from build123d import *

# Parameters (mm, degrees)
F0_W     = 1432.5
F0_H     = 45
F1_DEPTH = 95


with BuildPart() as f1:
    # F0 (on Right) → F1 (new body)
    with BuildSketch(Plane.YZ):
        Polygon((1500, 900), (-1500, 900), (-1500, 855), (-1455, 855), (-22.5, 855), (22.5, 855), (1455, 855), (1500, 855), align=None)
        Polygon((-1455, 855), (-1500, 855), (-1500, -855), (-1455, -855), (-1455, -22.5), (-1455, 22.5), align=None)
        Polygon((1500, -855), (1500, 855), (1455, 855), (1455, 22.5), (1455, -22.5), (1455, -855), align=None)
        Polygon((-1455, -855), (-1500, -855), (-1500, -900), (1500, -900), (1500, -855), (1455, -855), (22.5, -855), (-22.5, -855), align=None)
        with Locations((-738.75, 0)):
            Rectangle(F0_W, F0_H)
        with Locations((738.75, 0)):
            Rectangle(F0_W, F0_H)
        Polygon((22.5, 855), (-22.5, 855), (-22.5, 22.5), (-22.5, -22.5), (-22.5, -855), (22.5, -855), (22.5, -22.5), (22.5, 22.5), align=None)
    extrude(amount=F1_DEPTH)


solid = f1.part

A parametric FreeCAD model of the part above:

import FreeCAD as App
import Part
import Sketcher
from FreeCAD import Vector
Q = App.Units.Quantity

doc = App.newDocument("Part")
body = doc.addObject("PartDesign::Body", "Body")

sketch1 = doc.addObject("Sketcher::SketchObject", "Sketch")
body.addObject(sketch1)
sketch1.AttachmentSupport = (doc.YZ_Plane, [""])
sketch1.MapMode = "FlatFace"
sketch1.addGeometry(Part.LineSegment(Vector(1500, 900, 0), Vector(-1500, 900, 0)), False)
sketch1.addGeometry(Part.LineSegment(Vector(-1500, 900, 0), Vector(-1500, -900, 0)), False)
sketch1.addGeometry(Part.LineSegment(Vector(-1500, -900, 0), Vector(1500, -900, 0)), False)
sketch1.addGeometry(Part.LineSegment(Vector(1500, -900, 0), Vector(1500, 900, 0)), False)
sketch1.addGeometry(Part.LineSegment(Vector(-1455, -855, 0), Vector(-1455, -22, 0)), False)
sketch1.addGeometry(Part.LineSegment(Vector(-1455, -22, 0), Vector(-22, -22, 0)), False)
sketch1.addGeometry(Part.LineSegment(Vector(-22, -22, 0), Vector(-22, -855, 0)), False)
sketch1.addGeometry(Part.LineSegment(Vector(-22, -855, 0), Vector(-1455, -855, 0)), False)
sketch1.addGeometry(Part.LineSegment(Vector(-22, 22, 0), Vector(-1455, 22, 0)), False)
sketch1.addGeometry(Part.LineSegment(Vector(-1455, 22, 0), Vector(-1455, 855, 0)), False)
sketch1.addGeometry(Part.LineSegment(Vector(-1455, 855, 0), Vector(-22, 855, 0)), False)
sketch1.addGeometry(Part.LineSegment(Vector(-22, 855, 0), Vector(-22, 22, 0)), False)
sketch1.addGeometry(Part.LineSegment(Vector(22, 855, 0), Vector(1455, 855, 0)), False)
sketch1.addGeometry(Part.LineSegment(Vector(1455, 855, 0), Vector(1455, 22, 0)), False)
sketch1.addGeometry(Part.LineSegment(Vector(1455, 22, 0), Vector(22, 22, 0)), False)
sketch1.addGeometry(Part.LineSegment(Vector(22, 22, 0), Vector(22, 855, 0)), False)
sketch1.addGeometry(Part.LineSegment(Vector(22, -22, 0), Vector(1455, -22, 0)), False)
sketch1.addGeometry(Part.LineSegment(Vector(1455, -22, 0), Vector(1455, -855, 0)), False)
sketch1.addGeometry(Part.LineSegment(Vector(1455, -855, 0), Vector(22, -855, 0)), False)
sketch1.addGeometry(Part.LineSegment(Vector(22, -855, 0), Vector(22, -22, 0)), False)
sketch1.addConstraint(Sketcher.Constraint("Coincident", 0, 2, 1, 1))
sketch1.addConstraint(Sketcher.Constraint("Coincident", 1, 2, 2, 1))
sketch1.addConstraint(Sketcher.Constraint("Coincident", 2, 2, 3, 1))
sketch1.addConstraint(Sketcher.Constraint("Coincident", 3, 2, 0, 1))
sketch1.addConstraint(Sketcher.Constraint("Coincident", 4, 2, 5, 1))
sketch1.addConstraint(Sketcher.Constraint("Coincident", 5, 2, 6, 1))
sketch1.addConstraint(Sketcher.Constraint("Coincident", 6, 2, 7, 1))
sketch1.addConstraint(Sketcher.Constraint("Coincident", 7, 2, 4, 1))
sketch1.addConstraint(Sketcher.Constraint("Coincident", 8, 2, 9, 1))
sketch1.addConstraint(Sketcher.Constraint("Coincident", 9, 2, 10, 1))
sketch1.addConstraint(Sketcher.Constraint("Coincident", 10, 2, 11, 1))
sketch1.addConstraint(Sketcher.Constraint("Coincident", 11, 2, 8, 1))
sketch1.addConstraint(Sketcher.Constraint("Coincident", 12, 2, 13, 1))
sketch1.addConstraint(Sketcher.Constraint("Coincident", 13, 2, 14, 1))
sketch1.addConstraint(Sketcher.Constraint("Coincident", 14, 2, 15, 1))
sketch1.addConstraint(Sketcher.Constraint("Coincident", 15, 2, 12, 1))
sketch1.addConstraint(Sketcher.Constraint("Coincident", 16, 2, 17, 1))
sketch1.addConstraint(Sketcher.Constraint("Coincident", 17, 2, 18, 1))
sketch1.addConstraint(Sketcher.Constraint("Coincident", 18, 2, 19, 1))
sketch1.addConstraint(Sketcher.Constraint("Coincident", 19, 2, 16, 1))
sketch1.addConstraint(Sketcher.Constraint("Horizontal", 0))
sketch1.addConstraint(Sketcher.Constraint("Vertical", 1))
sketch1.addConstraint(Sketcher.Constraint("Horizontal", 2))
sketch1.addConstraint(Sketcher.Constraint("Vertical", 3))
sketch1.addConstraint(Sketcher.Constraint("Vertical", 4))
sketch1.addConstraint(Sketcher.Constraint("Horizontal", 5))
sketch1.addConstraint(Sketcher.Constraint("Vertical", 6))
sketch1.addConstraint(Sketcher.Constraint("Horizontal", 7))
sketch1.addConstraint(Sketcher.Constraint("Horizontal", 8))
sketch1.addConstraint(Sketcher.Constraint("Vertical", 9))
sketch1.addConstraint(Sketcher.Constraint("Horizontal", 10))
sketch1.addConstraint(Sketcher.Constraint("Vertical", 11))
sketch1.addConstraint(Sketcher.Constraint("Horizontal", 12))
sketch1.addConstraint(Sketcher.Constraint("Vertical", 13))
sketch1.addConstraint(Sketcher.Constraint("Horizontal", 14))
sketch1.addConstraint(Sketcher.Constraint("Vertical", 15))
sketch1.addConstraint(Sketcher.Constraint("Horizontal", 16))
sketch1.addConstraint(Sketcher.Constraint("Vertical", 17))
sketch1.addConstraint(Sketcher.Constraint("Horizontal", 18))
sketch1.addConstraint(Sketcher.Constraint("Vertical", 19))
sketch1.addConstraint(Sketcher.Constraint("Symmetric", 0, 2, 2, 2, -1, 1))
sketch1.addConstraint(Sketcher.Constraint("Symmetric", 7, 2, 12, 2, -1, 1))
sketch1.addConstraint(Sketcher.Constraint("Symmetric", 5, 2, 14, 2, -1, 1))
sketch1.addConstraint(Sketcher.Constraint("Symmetric", 8, 2, 16, 2, -1, 1))
sketch1.addConstraint(Sketcher.Constraint("Symmetric", 10, 2, 18, 2, -1, 1))
sketch1.addConstraint(Sketcher.Constraint("Symmetric", 9, 2, 12, 2, -2))
sketch1.addConstraint(Sketcher.Constraint("Symmetric", 11, 2, 14, 2, -2))
sketch1.addConstraint(Sketcher.Constraint("DistanceX", 0, 2, 0, 1, Q("3000 mm")))
sketch1.addConstraint(Sketcher.Constraint("DistanceY", 1, 2, 1, 1, Q("1800 mm")))
sketch1.addConstraint(Sketcher.Constraint("DistanceX", 5, 1, 5, 2, Q("1432.5 mm")))
sketch1.addConstraint(Sketcher.Constraint("DistanceY", 4, 1, 4, 2, Q("832.5 mm")))
sketch1.addConstraint(Sketcher.Constraint("DistanceX", 4, 2, -1, 1, Q("1455 mm")))
sketch1.addConstraint(Sketcher.Constraint("DistanceY", 6, 2, -1, 1, Q("855 mm")))
pad1 = doc.addObject("PartDesign::Pad", "Pad")
body.addObject(pad1)
pad1.Profile = sketch1
pad1.Length = 95

doc.recompute()
